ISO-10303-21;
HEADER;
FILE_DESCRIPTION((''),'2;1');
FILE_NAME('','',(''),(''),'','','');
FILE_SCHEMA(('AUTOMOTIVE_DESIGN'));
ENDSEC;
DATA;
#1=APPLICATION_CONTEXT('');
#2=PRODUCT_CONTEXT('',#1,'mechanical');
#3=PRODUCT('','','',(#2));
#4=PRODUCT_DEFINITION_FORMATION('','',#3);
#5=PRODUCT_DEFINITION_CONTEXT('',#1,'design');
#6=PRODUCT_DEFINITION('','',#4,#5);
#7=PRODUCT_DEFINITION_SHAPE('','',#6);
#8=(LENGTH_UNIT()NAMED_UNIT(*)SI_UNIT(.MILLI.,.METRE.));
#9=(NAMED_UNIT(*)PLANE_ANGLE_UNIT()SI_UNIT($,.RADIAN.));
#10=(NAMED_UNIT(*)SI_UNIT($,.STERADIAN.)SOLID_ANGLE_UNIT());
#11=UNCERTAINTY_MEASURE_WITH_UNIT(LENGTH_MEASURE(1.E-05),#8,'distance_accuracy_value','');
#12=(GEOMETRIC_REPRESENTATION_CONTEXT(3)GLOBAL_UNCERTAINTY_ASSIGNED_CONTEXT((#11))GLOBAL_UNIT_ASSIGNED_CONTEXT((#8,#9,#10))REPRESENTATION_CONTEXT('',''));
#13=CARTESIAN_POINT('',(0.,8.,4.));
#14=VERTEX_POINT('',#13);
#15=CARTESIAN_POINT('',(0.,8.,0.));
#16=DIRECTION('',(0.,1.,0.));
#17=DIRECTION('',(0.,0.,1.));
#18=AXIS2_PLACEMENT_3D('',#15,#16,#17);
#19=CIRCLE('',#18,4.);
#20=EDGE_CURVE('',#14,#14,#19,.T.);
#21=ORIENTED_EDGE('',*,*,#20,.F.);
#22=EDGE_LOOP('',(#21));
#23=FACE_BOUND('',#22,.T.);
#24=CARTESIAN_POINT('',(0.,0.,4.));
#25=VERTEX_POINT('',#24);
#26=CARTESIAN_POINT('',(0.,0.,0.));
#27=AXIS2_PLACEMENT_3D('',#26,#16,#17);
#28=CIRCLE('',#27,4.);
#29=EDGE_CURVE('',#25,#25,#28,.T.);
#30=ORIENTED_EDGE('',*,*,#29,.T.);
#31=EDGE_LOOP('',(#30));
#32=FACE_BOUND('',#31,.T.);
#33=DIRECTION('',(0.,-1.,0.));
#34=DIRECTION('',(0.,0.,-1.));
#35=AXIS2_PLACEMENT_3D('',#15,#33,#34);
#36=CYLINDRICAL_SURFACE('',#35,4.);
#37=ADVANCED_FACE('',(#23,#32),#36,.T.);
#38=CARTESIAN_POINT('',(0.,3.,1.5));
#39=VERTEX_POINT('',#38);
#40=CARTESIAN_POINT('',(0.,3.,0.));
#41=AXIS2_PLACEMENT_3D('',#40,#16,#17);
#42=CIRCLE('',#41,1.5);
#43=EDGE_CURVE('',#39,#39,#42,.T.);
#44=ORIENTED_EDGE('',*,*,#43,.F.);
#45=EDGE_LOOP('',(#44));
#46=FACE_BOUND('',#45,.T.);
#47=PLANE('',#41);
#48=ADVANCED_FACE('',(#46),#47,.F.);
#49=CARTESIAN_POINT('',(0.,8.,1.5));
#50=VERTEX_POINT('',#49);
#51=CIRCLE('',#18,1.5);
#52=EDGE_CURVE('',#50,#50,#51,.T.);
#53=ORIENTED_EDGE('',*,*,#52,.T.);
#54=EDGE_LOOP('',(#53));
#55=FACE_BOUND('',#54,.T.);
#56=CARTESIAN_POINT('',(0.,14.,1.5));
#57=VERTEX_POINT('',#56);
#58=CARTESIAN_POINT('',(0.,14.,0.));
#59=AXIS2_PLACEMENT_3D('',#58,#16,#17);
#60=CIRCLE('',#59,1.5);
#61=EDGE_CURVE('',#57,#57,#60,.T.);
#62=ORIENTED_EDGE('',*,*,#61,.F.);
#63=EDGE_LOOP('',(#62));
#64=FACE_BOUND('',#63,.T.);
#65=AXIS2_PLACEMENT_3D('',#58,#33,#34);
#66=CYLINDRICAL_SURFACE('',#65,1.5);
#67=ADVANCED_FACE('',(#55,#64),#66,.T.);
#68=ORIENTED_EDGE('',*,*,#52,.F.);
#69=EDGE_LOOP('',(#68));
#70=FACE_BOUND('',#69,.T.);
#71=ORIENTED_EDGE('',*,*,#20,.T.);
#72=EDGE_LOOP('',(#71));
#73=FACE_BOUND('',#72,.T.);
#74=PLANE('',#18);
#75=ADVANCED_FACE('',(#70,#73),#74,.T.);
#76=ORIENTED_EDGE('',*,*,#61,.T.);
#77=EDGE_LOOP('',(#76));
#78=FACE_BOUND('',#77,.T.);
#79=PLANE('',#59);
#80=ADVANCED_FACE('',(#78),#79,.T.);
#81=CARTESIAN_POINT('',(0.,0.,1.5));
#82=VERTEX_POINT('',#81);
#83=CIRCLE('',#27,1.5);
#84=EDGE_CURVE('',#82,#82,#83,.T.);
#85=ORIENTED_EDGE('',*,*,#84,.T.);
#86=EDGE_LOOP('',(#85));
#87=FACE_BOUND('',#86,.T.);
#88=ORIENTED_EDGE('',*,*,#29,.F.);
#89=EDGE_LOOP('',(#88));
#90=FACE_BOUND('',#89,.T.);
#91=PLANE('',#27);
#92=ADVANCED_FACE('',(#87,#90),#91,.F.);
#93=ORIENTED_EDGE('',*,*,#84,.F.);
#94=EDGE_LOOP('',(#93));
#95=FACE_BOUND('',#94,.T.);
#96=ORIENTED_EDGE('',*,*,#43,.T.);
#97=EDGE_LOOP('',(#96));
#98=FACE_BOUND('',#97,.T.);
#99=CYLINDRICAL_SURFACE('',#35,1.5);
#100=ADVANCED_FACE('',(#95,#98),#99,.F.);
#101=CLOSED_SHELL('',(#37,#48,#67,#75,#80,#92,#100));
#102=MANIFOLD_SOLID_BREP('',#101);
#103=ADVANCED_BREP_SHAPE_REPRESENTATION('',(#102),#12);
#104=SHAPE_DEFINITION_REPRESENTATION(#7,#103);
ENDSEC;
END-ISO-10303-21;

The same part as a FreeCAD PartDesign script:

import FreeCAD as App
import Part
import Sketcher
Q = App.Units.Quantity

doc = App.newDocument("Part")
body = doc.addObject("PartDesign::Body", "Body")

# Sketch on XZ plane
sketch1 = body.newObject("Sketcher::SketchObject", "Sketch")
sketch1.AttachmentSupport = (doc.getObject("XZ_Plane"), [""])
sketch1.MapMode = "FlatFace"
sketch1.addGeometry([
    Part.Circle(App.Vector(0, 0, 0), App.Vector(0, 0, 1), 4),
    Part.Circle(App.Vector(0, 0, 0), App.Vector(0, 0, 1), 1.5),
], False)
sketch1.addConstraint([
    Sketcher.Constraint("Coincident", 0, 3, -1, 1),
    Sketcher.Constraint("Coincident", 1, 3, -1, 1),
    Sketcher.Constraint("Diameter", 0, Q("8 mm")),
    Sketcher.Constraint("Diameter", 1, Q("3 mm")),
])
pad1 = body.newObject("PartDesign::Pad", "Pad")
pad1.Profile = sketch1
pad1.Length = 8
pad1.Reversed = True

# Sketch on XZ plane
sketch2 = body.newObject("Sketcher::SketchObject", "Sketch001")
sketch2.AttachmentSupport = (doc.getObject("XZ_Plane"), [""])
sketch2.MapMode = "FlatFace"
sketch2.AttachmentOffset = App.Placement(App.Vector(0, 0, -8), App.Rotation())
sketch2.addGeometry(Part.Circle(App.Vector(0, 0, 0), App.Vector(0, 0, 1), 1.5), False)
sketch2.addConstraint([
    Sketcher.Constraint("Coincident", 0, 3, -1, 1),
    Sketcher.Constraint("Diameter", 0, Q("3 mm")),
])
pad2 = body.newObject("PartDesign::Pad", "Pad001")
pad2.Profile = sketch2
pad2.Length = 5

# Sketch on XZ plane
sketch3 = body.newObject("Sketcher::SketchObject", "Sketch002")
sketch3.AttachmentSupport = (doc.getObject("XZ_Plane"), [""])
sketch3.MapMode = "FlatFace"
sketch3.AttachmentOffset = App.Placement(App.Vector(0, 0, -8), App.Rotation())
sketch3.addGeometry(Part.Circle(App.Vector(0, 0, 0), App.Vector(0, 0, 1), 1.5), False)
sketch3.addConstraint([
    Sketcher.Constraint("Coincident", 0, 3, -1, 1),
    Sketcher.Constraint("Diameter", 0, Q("3 mm")),
])
pad3 = body.newObject("PartDesign::Pad", "Pad002")
pad3.Profile = sketch3
pad3.Length = 6
pad3.Reversed = True

doc.recompute()
